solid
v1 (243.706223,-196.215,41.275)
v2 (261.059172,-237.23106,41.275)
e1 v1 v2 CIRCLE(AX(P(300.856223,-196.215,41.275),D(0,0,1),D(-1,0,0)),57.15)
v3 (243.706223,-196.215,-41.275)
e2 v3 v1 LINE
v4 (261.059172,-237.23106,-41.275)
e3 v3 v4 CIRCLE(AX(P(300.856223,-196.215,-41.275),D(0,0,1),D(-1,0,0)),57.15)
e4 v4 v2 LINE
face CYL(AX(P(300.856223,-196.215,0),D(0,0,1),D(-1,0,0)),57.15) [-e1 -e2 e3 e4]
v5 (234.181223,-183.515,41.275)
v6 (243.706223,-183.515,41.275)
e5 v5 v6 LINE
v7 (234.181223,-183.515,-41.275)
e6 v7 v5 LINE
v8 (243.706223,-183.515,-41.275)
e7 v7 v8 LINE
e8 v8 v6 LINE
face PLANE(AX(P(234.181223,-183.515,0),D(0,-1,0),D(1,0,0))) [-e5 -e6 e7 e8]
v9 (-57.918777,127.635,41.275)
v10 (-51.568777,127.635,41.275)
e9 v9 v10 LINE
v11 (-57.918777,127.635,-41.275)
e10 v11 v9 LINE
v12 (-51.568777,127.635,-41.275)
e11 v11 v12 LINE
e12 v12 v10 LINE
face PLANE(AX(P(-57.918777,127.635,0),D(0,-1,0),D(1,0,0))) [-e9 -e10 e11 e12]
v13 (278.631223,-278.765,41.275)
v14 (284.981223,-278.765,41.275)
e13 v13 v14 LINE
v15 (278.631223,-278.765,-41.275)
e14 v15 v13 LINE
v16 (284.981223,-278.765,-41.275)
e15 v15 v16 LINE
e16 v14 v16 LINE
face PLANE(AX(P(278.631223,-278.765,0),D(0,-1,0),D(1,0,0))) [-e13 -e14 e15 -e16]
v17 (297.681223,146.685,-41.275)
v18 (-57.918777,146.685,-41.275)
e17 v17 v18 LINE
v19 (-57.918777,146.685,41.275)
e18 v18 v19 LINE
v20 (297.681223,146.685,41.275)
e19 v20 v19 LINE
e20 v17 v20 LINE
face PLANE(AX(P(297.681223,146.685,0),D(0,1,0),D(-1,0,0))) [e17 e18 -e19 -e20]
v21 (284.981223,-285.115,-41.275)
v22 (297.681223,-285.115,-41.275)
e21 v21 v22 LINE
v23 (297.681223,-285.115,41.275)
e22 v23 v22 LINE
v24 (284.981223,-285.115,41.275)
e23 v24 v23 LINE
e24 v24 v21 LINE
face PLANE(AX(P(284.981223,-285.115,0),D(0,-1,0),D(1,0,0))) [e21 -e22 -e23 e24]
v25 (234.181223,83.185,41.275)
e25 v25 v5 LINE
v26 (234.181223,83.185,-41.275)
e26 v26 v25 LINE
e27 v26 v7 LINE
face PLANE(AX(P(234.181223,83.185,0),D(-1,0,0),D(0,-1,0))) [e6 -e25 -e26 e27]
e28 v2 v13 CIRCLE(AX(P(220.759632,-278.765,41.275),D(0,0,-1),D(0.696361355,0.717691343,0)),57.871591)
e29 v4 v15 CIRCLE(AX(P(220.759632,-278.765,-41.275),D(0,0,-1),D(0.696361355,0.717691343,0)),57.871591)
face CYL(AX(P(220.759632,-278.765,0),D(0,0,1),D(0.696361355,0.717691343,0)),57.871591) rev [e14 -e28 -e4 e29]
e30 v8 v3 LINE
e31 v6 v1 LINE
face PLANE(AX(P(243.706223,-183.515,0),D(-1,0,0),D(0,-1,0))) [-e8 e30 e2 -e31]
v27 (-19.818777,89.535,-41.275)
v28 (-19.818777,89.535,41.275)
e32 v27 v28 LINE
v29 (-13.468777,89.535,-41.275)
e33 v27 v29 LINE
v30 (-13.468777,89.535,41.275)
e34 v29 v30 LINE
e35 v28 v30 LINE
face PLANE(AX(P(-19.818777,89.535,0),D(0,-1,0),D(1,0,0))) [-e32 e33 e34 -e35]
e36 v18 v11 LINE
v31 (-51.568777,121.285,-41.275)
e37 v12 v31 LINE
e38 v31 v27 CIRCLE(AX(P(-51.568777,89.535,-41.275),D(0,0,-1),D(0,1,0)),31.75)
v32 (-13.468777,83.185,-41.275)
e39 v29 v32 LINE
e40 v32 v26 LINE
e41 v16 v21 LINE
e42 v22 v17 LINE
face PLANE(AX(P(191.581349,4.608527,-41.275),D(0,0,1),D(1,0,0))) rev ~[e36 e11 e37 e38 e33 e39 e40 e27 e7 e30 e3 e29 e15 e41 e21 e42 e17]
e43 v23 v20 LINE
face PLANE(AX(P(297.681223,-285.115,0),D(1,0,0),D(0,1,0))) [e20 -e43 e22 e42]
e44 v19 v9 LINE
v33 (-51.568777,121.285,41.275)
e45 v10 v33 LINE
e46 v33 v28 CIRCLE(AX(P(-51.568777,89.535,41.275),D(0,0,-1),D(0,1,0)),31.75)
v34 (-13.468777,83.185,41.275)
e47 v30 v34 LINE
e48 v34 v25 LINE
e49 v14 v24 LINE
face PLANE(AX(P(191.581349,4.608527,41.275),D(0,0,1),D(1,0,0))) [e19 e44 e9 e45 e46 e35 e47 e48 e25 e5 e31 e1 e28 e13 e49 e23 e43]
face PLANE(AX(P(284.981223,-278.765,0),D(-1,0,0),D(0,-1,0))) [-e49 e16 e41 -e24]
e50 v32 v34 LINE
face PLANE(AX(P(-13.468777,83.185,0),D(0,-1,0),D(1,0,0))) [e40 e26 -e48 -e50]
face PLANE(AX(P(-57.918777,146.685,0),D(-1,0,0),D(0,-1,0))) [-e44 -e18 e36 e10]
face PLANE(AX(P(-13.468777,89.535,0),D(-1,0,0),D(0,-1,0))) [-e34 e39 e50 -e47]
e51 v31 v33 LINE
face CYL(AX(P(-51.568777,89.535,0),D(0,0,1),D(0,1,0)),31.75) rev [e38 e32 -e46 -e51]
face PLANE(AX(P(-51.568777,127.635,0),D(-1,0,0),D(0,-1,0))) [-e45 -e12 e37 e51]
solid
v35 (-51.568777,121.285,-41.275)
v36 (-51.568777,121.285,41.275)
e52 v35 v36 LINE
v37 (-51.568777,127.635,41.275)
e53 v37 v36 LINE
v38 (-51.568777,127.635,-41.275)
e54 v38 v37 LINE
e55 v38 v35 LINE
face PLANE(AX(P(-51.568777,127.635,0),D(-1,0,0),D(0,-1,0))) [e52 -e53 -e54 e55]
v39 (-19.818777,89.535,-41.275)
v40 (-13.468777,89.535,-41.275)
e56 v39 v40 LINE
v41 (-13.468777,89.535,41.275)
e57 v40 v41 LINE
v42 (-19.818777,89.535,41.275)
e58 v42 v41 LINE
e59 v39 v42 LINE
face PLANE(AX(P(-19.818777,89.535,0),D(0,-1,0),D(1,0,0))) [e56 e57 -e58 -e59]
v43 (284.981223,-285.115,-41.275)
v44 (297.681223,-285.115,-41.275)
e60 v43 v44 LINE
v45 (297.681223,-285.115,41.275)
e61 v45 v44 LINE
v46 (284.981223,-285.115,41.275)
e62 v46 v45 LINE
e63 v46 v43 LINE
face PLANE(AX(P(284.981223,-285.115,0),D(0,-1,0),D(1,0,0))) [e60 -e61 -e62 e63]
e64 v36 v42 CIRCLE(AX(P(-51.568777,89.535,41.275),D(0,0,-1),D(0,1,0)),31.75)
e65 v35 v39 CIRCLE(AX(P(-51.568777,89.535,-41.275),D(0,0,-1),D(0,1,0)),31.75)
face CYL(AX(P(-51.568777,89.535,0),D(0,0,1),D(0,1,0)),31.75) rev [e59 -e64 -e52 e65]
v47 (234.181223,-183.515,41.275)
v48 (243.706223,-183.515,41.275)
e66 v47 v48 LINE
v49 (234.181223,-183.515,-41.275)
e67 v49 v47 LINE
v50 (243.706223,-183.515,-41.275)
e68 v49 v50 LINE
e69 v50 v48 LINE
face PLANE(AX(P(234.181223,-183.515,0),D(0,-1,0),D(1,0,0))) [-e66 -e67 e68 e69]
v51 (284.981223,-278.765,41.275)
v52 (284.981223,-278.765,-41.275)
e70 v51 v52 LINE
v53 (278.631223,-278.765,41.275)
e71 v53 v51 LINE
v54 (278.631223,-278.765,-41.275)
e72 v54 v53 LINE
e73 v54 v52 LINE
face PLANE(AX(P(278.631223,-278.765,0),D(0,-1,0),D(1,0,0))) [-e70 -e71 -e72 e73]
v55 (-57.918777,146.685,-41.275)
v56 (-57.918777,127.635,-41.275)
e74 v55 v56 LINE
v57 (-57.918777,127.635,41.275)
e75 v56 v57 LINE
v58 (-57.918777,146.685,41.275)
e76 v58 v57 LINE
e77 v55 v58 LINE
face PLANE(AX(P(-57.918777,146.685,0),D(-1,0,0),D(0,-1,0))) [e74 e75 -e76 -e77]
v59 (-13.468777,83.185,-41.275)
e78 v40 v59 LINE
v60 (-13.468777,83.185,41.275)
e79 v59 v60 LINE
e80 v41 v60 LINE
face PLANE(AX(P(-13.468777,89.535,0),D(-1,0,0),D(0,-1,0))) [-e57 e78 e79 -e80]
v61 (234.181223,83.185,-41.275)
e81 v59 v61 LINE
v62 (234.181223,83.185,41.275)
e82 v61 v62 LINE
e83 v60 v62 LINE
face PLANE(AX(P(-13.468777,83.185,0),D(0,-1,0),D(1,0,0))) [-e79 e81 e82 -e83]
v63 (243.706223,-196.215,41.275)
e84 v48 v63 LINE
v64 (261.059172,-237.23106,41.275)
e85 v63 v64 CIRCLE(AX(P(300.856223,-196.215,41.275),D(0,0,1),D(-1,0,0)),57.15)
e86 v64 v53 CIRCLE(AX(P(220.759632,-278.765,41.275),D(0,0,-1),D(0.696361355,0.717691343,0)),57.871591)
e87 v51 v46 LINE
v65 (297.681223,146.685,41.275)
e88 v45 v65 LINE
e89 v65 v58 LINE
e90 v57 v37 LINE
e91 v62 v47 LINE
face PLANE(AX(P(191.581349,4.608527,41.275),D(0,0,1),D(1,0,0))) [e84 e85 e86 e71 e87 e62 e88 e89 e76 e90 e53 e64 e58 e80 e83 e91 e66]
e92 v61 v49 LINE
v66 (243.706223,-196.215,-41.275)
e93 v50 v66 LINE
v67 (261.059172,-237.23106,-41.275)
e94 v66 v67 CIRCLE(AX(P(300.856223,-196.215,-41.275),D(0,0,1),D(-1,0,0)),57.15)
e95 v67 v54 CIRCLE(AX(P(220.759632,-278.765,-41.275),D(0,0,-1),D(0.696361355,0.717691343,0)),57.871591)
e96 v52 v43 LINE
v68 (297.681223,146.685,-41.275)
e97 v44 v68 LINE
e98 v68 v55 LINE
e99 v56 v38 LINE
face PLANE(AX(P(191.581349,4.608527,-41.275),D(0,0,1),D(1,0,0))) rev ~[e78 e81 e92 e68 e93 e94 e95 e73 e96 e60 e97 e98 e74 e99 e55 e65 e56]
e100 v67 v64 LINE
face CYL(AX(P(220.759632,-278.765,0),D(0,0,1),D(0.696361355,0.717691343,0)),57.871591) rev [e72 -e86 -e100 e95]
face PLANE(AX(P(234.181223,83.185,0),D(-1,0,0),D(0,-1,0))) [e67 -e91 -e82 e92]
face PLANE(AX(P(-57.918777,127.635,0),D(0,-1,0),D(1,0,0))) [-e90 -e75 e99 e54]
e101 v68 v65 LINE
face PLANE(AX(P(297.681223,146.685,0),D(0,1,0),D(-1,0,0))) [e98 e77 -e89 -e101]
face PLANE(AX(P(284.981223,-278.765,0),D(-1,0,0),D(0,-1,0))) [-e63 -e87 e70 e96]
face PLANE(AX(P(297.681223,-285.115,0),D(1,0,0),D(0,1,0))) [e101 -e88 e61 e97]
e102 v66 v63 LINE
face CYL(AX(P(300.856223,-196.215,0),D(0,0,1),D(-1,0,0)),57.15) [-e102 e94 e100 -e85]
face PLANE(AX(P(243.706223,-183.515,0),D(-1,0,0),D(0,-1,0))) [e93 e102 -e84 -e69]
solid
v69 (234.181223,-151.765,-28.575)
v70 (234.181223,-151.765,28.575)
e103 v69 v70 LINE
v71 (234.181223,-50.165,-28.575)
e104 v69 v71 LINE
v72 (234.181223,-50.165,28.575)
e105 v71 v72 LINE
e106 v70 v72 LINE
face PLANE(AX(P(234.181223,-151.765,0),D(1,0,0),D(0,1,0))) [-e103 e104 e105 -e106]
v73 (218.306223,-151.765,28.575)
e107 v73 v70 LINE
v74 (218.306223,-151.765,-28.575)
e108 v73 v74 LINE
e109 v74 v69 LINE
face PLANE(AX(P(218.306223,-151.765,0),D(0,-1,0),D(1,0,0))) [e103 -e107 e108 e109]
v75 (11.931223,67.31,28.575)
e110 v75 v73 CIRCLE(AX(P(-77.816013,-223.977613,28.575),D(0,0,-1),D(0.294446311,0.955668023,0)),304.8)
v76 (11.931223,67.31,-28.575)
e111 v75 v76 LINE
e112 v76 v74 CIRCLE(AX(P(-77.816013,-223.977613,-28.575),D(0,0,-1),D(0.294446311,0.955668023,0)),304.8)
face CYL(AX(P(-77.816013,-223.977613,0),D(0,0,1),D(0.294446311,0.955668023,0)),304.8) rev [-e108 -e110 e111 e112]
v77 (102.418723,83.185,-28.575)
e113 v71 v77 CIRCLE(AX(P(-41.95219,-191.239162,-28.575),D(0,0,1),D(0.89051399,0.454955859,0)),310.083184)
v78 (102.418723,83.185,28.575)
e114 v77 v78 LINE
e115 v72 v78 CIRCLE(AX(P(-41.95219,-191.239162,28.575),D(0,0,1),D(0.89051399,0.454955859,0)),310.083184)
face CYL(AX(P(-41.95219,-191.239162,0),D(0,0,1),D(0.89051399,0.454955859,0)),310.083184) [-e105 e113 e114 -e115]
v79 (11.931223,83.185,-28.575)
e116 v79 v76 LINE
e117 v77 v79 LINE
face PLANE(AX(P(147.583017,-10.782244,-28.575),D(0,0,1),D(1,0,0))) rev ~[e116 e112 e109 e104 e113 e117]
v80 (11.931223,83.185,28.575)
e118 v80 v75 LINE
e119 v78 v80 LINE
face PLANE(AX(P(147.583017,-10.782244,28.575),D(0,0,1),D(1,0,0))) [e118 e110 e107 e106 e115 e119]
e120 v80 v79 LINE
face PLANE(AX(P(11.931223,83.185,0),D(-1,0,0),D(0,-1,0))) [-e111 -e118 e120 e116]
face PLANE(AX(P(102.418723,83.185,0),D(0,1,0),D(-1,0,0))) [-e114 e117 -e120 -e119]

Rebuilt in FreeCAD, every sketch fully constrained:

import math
import FreeCAD as App
import Part
import Sketcher
from FreeCAD import Vector
Q = App.Units.Quantity

doc = App.newDocument("Part")
params = doc.addObject("Spreadsheet::Sheet", "Params")
for row, (alias, value) in enumerate([
    ("sketch1_width", "14 in"),
    ("sketch1_height", "17 in"),
    ("sketch1_radius", "1.25 in"),
    ("sketch1_radius2", "2.25 in"),
    ("sketch1_width2", "0.5 in"),
    ("pad1_length", "3.25 in"),
    ("sketch2_radius", "12 in"),
    ("sketch2_height", "4 in"),
    ("sketch2_width", "0.625 in"),
    ("sketch2_width2", "3.5625 in"),
    ("pad2_length", "2.25 in"),
    ("sketch3_width", "14 in"),
    ("sketch3_height", "17 in"),
    ("sketch3_radius", "1.25 in"),
    ("sketch3_radius2", "2.25 in"),
    ("sketch3_width2", "0.5 in"),
    ("pad3_length", "3.25 in"),
], start=1):
    params.set(f"A{row}", alias)
    params.set(f"B{row}", "=" + value)
    params.setAlias(f"B{row}", alias)

body = doc.addObject("PartDesign::Body", "Body")

sketch1 = body.newObject("Sketcher::SketchObject", "Sketch")
sketch1.AttachmentSupport = (doc.getObject("XY_Plane"), [""])
sketch1.MapMode = "FlatFace"
sketch1.addGeometry([
    Part.LineSegment(Vector(298, -285, 0), Vector(298, 147, 0)),
    Part.LineSegment(Vector(298, 147, 0), Vector(-58, 147, 0)),
    Part.LineSegment(Vector(-58, 147, 0), Vector(-58, 128, 0)),
    Part.LineSegment(Vector(-58, 128, 0), Vector(-52, 128, 0)),
    Part.LineSegment(Vector(-52, 128, 0), Vector(-52, 121, 0)),
    Part.ArcOfCircle(Part.Circle(Vector(-52, 90, 0), Vector(0, 0, 1), 32), math.radians(0), math.radians(90)),
    Part.LineSegment(Vector(-20, 90, 0), Vector(-13, 90, 0)),
    Part.LineSegment(Vector(-13, 90, 0), Vector(-13, 83, 0)),
    Part.LineSegment(Vector(-13, 83, 0), Vector(234, 83, 0)),
    Part.LineSegment(Vector(234, 83, 0), Vector(234, -184, 0)),
    Part.LineSegment(Vector(234, -184, 0), Vector(244, -184, 0)),
    Part.LineSegment(Vector(244, -184, 0), Vector(244, -196, 0)),
    Part.ArcOfCircle(Part.Circle(Vector(301, -196, 0), Vector(0, 0, 1), 57), math.radians(180), math.radians(226)),
    Part.ArcOfCircle(Part.Circle(Vector(221, -279, 0), Vector(0, 0, 1), 58), math.radians(0), math.radians(46)),
    Part.LineSegment(Vector(279, -279, 0), Vector(285, -279, 0)),
    Part.LineSegment(Vector(285, -279, 0), Vector(285, -285, 0)),
    Part.LineSegment(Vector(285, -285, 0), Vector(298, -285, 0)),
], False)
sketch1.addConstraint([
    Sketcher.Constraint("Coincident", 0, 2, 1, 1),
    Sketcher.Constraint("Coincident", 1, 2, 2, 1),
    Sketcher.Constraint("Coincident", 2, 2, 3, 1),
    Sketcher.Constraint("Coincident", 3, 2, 4, 1),
    Sketcher.Constraint("Coincident", 4, 2, 5, 2),
    Sketcher.Constraint("Coincident", 5, 1, 6, 1),
    Sketcher.Constraint("Coincident", 6, 2, 7, 1),
    Sketcher.Constraint("Coincident", 7, 2, 8, 1),
    Sketcher.Constraint("Coincident", 8, 2, 9, 1),
    Sketcher.Constraint("Coincident", 9, 2, 10, 1),
    Sketcher.Constraint("Coincident", 10, 2, 11, 1),
    Sketcher.Constraint("Tangent", 11, 2, 12, 1),
    Sketcher.Constraint("Tangent", 12, 2, 13, 2),
    Sketcher.Constraint("Coincident", 13, 1, 14, 1),
    Sketcher.Constraint("Coincident", 14, 2, 15, 1),
    Sketcher.Constraint("Coincident", 15, 2, 16, 1),
    Sketcher.Constraint("Coincident", 16, 2, 0, 1),
    Sketcher.Constraint("Vertical", 0),
    Sketcher.Constraint("Horizontal", 1),
    Sketcher.Constraint("Vertical", 2),
    Sketcher.Constraint("Horizontal", 3),
    Sketcher.Constraint("Vertical", 4),
    Sketcher.Constraint("Horizontal", 6),
    Sketcher.Constraint("Vertical", 7),
    Sketcher.Constraint("Horizontal", 8),
    Sketcher.Constraint("Vertical", 9),
    Sketcher.Constraint("Horizontal", 10),
    Sketcher.Constraint("Vertical", 11),
    Sketcher.Constraint("Horizontal", 14),
    Sketcher.Constraint("Vertical", 15),
    Sketcher.Constraint("Horizontal", 16),
    Sketcher.Constraint("Vertical", 5, 3, 3, 2),
    Sketcher.Constraint("Equal", 3, 6),
    Sketcher.Constraint("Equal", 6, 14),
    Sketcher.Constraint("Equal", 14, 4),
    Sketcher.Constraint("Equal", 4, 7),
    Sketcher.Constraint("Equal", 16, 11),
    Sketcher.Constraint("Equal", 7, 15),
    Sketcher.Constraint("DistanceX", 1, 2, 1, 1, Q("14 in")),
    Sketcher.Constraint("DistanceY", 0, 1, 0, 2, Q("17 in")),
    Sketcher.Constraint("Radius", 5, Q("1.25 in")),
    Sketcher.Constraint("Radius", 12, Q("2.25 in")),
    Sketcher.Constraint("DistanceX", 16, 1, 16, 2, Q("0.5 in")),
    Sketcher.Constraint("DistanceY", 9, 2, 9, 1, Q("10.5 in")),
    Sketcher.Constraint("DistanceY", 13, 3, 2, 2, Q("16 in")),
    Sketcher.Constraint("DistanceY", 4, 2, 1, 2, Q("1 in")),
    Sketcher.Constraint("DistanceX", 5, 1, 8, 2, Q("10 in")),
    Sketcher.Constraint("DistanceY", 9, 2, 0, 2, Q("13 in")),
    Sketcher.Constraint("DistanceX", 3, 1, 3, 2, Q("0.25 in")),
    Sketcher.Constraint("DistanceX", 10, 1, 10, 2, Q("0.375 in")),
    Sketcher.Constraint("DistanceY", -1, 1, 5, 3, Q("3.525 in")),
    Sketcher.Constraint("DistanceX", -1, 1, 12, 2, Q("261.059172 mm")),
])
sketch1.setExpression("Constraints[38]", "Params.sketch1_width")
sketch1.setExpression("Constraints[39]", "Params.sketch1_height")
sketch1.setExpression("Constraints[40]", "Params.sketch1_radius")
sketch1.setExpression("Constraints[41]", "Params.sketch1_radius2")
sketch1.setExpression("Constraints[42]", "Params.sketch1_width2")
pad1 = body.newObject("PartDesign::Pad", "Pad")
pad1.Profile = sketch1
pad1.setExpression("Length", "Params.pad1_length")
pad1.Midplane = True
body2 = doc.addObject("PartDesign::Body", "Body001")

sketch2 = body2.newObject("Sketcher::SketchObject", "Sketch001")
sketch2.AttachmentSupport = (doc.getObject("XY_Plane001"), [""])
sketch2.MapMode = "FlatFace"
sketch2.addGeometry([
    Part.LineSegment(Vector(218, -152, 0), Vector(234, -152, 0)),
    Part.LineSegment(Vector(234, -152, 0), Vector(234, -50, 0)),
    Part.ArcOfCircle(Part.Circle(Vector(-42, -191, 0), Vector(0, 0, 1), 310), math.radians(27), math.radians(62)),
    Part.LineSegment(Vector(102, 83, 0), Vector(12, 83, 0)),
    Part.LineSegment(Vector(12, 83, 0), Vector(12, 67, 0)),
    Part.ArcOfCircle(Part.Circle(Vector(-78, -224, 0), Vector(0, 0, 1), 305), math.radians(14), math.radians(73)),
], False)
sketch2.addConstraint([
    Sketcher.Constraint("Coincident", 0, 2, 1, 1),
    Sketcher.Constraint("Coincident", 1, 2, 2, 1),
    Sketcher.Constraint("Coincident", 2, 2, 3, 1),
    Sketcher.Constraint("Coincident", 3, 2, 4, 1),
    Sketcher.Constraint("Coincident", 4, 2, 5, 2),
    Sketcher.Constraint("Coincident", 5, 1, 0, 1),
    Sketcher.Constraint("Horizontal", 0),
    Sketcher.Constraint("Vertical", 1),
    Sketcher.Constraint("Horizontal", 3),
    Sketcher.Constraint("Vertical", 4),
    Sketcher.Constraint("Equal", 0, 4),
    Sketcher.Constraint("Radius", 5, Q("12 in")),
    Sketcher.Constraint("DistanceY", 1, 1, 1, 2, Q("4 in")),
    Sketcher.Constraint("DistanceX", 0, 1, 0, 2, Q("0.625 in")),
    Sketcher.Constraint("DistanceX", 3, 2, 3, 1, Q("3.5625 in")),
    Sketcher.Constraint("DistanceY", -1, 1, 4, 2, Q("2.65 in")),
    Sketcher.Constraint("DistanceY", 1, 2, 2, 2, Q("5.25 in")),
    Sketcher.Constraint("DistanceX", 3, 2, 1, 2, Q("8.75 in")),
    Sketcher.Constraint("Radius", 2, Q("310.083184 mm")),
    Sketcher.Constraint("DistanceX", 2, 3, -1, 1, Q("41.95219 mm")),
])
sketch2.setExpression("Constraints[11]", "Params.sketch2_radius")
sketch2.setExpression("Constraints[12]", "Params.sketch2_height")
sketch2.setExpression("Constraints[13]", "Params.sketch2_width")
sketch2.setExpression("Constraints[14]", "Params.sketch2_width2")
pad2 = body2.newObject("PartDesign::Pad", "Pad001")
pad2.Profile = sketch2
pad2.setExpression("Length", "Params.pad2_length")
pad2.Midplane = True
body3 = doc.addObject("PartDesign::Body", "Body002")

sketch3 = body3.newObject("Sketcher::SketchObject", "Sketch002")
sketch3.AttachmentSupport = (doc.getObject("XY_Plane002"), [""])
sketch3.MapMode = "FlatFace"
sketch3.addGeometry([
    Part.LineSegment(Vector(298, -285, 0), Vector(298, 147, 0)),
    Part.LineSegment(Vector(298, 147, 0), Vector(-58, 147, 0)),
    Part.LineSegment(Vector(-58, 147, 0), Vector(-58, 128, 0)),
    Part.LineSegment(Vector(-58, 128, 0), Vector(-52, 128, 0)),
    Part.LineSegment(Vector(-52, 128, 0), Vector(-52, 121, 0)),
    Part.ArcOfCircle(Part.Circle(Vector(-52, 90, 0), Vector(0, 0, 1), 32), math.radians(0), math.radians(90)),
    Part.LineSegment(Vector(-20, 90, 0), Vector(-13, 90, 0)),
    Part.LineSegment(Vector(-13, 90, 0), Vector(-13, 83, 0)),
    Part.LineSegment(Vector(-13, 83, 0), Vector(234, 83, 0)),
    Part.LineSegment(Vector(234, 83, 0), Vector(234, -184, 0)),
    Part.LineSegment(Vector(234, -184, 0), Vector(244, -184, 0)),
    Part.LineSegment(Vector(244, -184, 0), Vector(244, -196, 0)),
    Part.ArcOfCircle(Part.Circle(Vector(301, -196, 0), Vector(0, 0, 1), 57), math.radians(180), math.radians(226)),
    Part.ArcOfCircle(Part.Circle(Vector(221, -279, 0), Vector(0, 0, 1), 58), math.radians(0), math.radians(46)),
    Part.LineSegment(Vector(279, -279, 0), Vector(285, -279, 0)),
    Part.LineSegment(Vector(285, -279, 0), Vector(285, -285, 0)),
    Part.LineSegment(Vector(285, -285, 0), Vector(298, -285, 0)),
], False)
sketch3.addConstraint([
    Sketcher.Constraint("Coincident", 0, 2, 1, 1),
    Sketcher.Constraint("Coincident", 1, 2, 2, 1),
    Sketcher.Constraint("Coincident", 2, 2, 3, 1),
    Sketcher.Constraint("Coincident", 3, 2, 4, 1),
    Sketcher.Constraint("Coincident", 4, 2, 5, 2),
    Sketcher.Constraint("Coincident", 5, 1, 6, 1),
    Sketcher.Constraint("Coincident", 6, 2, 7, 1),
    Sketcher.Constraint("Coincident", 7, 2, 8, 1),
    Sketcher.Constraint("Coincident", 8, 2, 9, 1),
    Sketcher.Constraint("Coincident", 9, 2, 10, 1),
    Sketcher.Constraint("Coincident", 10, 2, 11, 1),
    Sketcher.Constraint("Tangent", 11, 2, 12, 1),
    Sketcher.Constraint("Tangent", 12, 2, 13, 2),
    Sketcher.Constraint("Coincident", 13, 1, 14, 1),
    Sketcher.Constraint("Coincident", 14, 2, 15, 1),
    Sketcher.Constraint("Coincident", 15, 2, 16, 1),
    Sketcher.Constraint("Coincident", 16, 2, 0, 1),
    Sketcher.Constraint("Vertical", 0),
    Sketcher.Constraint("Horizontal", 1),
    Sketcher.Constraint("Vertical", 2),
    Sketcher.Constraint("Horizontal", 3),
    Sketcher.Constraint("Vertical", 4),
    Sketcher.Constraint("Horizontal", 6),
    Sketcher.Constraint("Vertical", 7),
    Sketcher.Constraint("Horizontal", 8),
    Sketcher.Constraint("Vertical", 9),
    Sketcher.Constraint("Horizontal", 10),
    Sketcher.Constraint("Vertical", 11),
    Sketcher.Constraint("Horizontal", 14),
    Sketcher.Constraint("Vertical", 15),
    Sketcher.Constraint("Horizontal", 16),
    Sketcher.Constraint("Vertical", 5, 3, 3, 2),
    Sketcher.Constraint("Equal", 3, 6),
    Sketcher.Constraint("Equal", 6, 14),
    Sketcher.Constraint("Equal", 14, 4),
    Sketcher.Constraint("Equal", 4, 7),
    Sketcher.Constraint("Equal", 16, 11),
    Sketcher.Constraint("Equal", 7, 15),
    Sketcher.Constraint("DistanceX", 1, 2, 1, 1, Q("14 in")),
    Sketcher.Constraint("DistanceY", 0, 1, 0, 2, Q("17 in")),
    Sketcher.Constraint("Radius", 5, Q("1.25 in")),
    Sketcher.Constraint("Radius", 12, Q("2.25 in")),
    Sketcher.Constraint("DistanceX", 16, 1, 16, 2, Q("0.5 in")),
    Sketcher.Constraint("DistanceY", 9, 2, 9, 1, Q("10.5 in")),
    Sketcher.Constraint("DistanceY", 13, 3, 2, 2, Q("16 in")),
    Sketcher.Constraint("DistanceY", 4, 2, 1, 2, Q("1 in")),
    Sketcher.Constraint("DistanceX", 5, 1, 8, 2, Q("10 in")),
    Sketcher.Constraint("DistanceY", 9, 2, 0, 2, Q("13 in")),
    Sketcher.Constraint("DistanceX", 3, 1, 3, 2, Q("0.25 in")),
    Sketcher.Constraint("DistanceX", 10, 1, 10, 2, Q("0.375 in")),
    Sketcher.Constraint("DistanceY", -1, 1, 5, 3, Q("3.525 in")),
    Sketcher.Constraint("DistanceX", -1, 1, 12, 2, Q("261.059172 mm")),
])
sketch3.setExpression("Constraints[38]", "Params.sketch3_width")
sketch3.setExpression("Constraints[39]", "Params.sketch3_height")
sketch3.setExpression("Constraints[40]", "Params.sketch3_radius")
sketch3.setExpression("Constraints[41]", "Params.sketch3_radius2")
sketch3.setExpression("Constraints[42]", "Params.sketch3_width2")
pad3 = body3.newObject("PartDesign::Pad", "Pad002")
pad3.Profile = sketch3
pad3.setExpression("Length", "Params.pad3_length")
pad3.Midplane = True

doc.recompute()
